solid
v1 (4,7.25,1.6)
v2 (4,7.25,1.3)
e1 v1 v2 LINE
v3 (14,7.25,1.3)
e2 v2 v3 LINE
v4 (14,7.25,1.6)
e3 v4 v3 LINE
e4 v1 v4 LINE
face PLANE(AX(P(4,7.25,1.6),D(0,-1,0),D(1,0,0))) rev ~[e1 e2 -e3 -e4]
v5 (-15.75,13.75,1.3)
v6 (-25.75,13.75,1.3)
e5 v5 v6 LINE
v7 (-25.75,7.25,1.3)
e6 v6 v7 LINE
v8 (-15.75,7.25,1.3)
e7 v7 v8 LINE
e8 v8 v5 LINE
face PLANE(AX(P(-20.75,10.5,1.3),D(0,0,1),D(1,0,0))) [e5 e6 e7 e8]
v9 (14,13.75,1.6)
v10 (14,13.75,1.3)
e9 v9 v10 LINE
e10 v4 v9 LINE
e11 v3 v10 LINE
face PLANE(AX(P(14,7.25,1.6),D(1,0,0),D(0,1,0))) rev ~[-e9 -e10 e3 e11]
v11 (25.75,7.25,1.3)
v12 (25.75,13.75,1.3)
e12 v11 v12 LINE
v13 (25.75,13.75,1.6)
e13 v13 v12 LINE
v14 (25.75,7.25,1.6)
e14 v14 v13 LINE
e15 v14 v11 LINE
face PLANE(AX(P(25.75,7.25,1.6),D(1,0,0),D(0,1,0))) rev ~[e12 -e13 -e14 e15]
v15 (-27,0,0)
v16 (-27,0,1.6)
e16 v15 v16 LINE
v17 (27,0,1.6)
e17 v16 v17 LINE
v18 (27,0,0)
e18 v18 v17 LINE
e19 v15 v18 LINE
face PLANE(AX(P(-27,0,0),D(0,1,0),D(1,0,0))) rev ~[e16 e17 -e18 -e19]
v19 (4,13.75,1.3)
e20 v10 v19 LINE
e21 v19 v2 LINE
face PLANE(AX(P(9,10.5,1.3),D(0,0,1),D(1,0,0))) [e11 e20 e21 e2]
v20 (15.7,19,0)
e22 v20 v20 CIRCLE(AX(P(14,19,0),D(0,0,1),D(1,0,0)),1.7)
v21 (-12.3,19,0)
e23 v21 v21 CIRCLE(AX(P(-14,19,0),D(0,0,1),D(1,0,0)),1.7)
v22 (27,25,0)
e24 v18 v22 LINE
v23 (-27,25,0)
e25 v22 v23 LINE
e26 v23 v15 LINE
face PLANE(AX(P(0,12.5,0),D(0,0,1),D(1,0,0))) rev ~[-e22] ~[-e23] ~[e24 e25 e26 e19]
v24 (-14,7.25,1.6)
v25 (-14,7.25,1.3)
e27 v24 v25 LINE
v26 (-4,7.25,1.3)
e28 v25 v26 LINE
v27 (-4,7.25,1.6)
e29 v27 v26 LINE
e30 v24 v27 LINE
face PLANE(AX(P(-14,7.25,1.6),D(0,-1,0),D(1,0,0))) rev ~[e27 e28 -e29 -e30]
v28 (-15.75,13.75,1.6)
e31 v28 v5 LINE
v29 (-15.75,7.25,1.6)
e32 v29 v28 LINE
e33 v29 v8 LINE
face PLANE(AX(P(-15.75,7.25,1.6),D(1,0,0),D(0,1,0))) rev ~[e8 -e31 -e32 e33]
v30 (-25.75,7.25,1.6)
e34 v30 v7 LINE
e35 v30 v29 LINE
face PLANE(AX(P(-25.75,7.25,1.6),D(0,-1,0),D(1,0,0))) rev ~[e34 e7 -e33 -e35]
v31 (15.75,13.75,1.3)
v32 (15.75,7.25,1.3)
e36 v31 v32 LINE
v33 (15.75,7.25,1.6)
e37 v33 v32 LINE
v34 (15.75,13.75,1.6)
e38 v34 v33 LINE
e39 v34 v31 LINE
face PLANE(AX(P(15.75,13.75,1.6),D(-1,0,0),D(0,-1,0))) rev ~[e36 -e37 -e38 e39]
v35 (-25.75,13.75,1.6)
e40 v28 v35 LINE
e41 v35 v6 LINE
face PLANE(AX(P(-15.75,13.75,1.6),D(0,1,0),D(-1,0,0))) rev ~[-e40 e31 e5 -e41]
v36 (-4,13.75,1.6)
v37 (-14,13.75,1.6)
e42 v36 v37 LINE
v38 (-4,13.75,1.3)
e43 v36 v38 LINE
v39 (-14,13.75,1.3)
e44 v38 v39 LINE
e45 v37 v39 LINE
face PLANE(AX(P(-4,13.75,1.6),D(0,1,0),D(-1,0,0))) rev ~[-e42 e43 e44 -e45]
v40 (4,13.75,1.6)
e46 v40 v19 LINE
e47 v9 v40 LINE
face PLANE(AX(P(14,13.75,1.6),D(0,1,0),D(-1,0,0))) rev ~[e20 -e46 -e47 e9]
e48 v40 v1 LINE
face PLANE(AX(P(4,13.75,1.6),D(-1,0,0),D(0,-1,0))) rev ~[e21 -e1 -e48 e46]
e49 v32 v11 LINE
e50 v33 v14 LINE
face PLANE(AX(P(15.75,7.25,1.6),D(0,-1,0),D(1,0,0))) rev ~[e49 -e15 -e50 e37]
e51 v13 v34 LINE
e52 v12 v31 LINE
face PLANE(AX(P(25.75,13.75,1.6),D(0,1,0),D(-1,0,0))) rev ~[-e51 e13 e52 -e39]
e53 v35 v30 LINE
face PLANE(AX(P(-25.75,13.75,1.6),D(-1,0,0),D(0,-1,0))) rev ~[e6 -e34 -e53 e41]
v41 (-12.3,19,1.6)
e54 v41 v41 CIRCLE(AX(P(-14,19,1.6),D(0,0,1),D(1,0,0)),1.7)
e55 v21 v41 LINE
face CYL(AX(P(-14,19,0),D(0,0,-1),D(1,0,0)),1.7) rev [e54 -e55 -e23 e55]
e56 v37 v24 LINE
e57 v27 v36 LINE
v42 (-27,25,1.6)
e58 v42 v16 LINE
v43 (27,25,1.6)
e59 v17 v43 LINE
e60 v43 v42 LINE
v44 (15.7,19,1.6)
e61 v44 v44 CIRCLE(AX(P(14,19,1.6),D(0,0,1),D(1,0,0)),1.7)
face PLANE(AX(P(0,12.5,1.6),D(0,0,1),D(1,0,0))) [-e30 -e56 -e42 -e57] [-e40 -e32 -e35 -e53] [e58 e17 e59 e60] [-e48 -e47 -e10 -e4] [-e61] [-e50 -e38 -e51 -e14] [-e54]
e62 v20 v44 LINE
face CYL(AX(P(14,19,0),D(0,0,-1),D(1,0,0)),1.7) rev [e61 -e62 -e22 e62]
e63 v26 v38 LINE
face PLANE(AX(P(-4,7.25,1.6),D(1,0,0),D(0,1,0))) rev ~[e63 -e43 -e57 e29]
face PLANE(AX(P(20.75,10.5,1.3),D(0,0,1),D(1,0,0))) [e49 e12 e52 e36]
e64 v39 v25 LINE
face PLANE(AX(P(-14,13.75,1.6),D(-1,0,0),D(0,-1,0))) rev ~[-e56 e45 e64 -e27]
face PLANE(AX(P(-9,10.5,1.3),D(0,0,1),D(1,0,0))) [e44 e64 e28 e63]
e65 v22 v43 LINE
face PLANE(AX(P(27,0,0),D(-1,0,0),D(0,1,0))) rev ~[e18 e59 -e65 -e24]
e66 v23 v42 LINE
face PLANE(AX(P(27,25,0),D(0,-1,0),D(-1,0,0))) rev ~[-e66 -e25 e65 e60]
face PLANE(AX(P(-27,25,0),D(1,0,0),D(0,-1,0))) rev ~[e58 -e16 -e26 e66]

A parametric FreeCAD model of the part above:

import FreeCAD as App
import Part
import Sketcher
from FreeCAD import Vector
Q = App.Units.Quantity


def add_polygon(sketch, points):
    """Adds a closed chain of lines whose ends are joined by coincident constraints."""
    first, n = sketch.GeometryCount, len(points)
    for a, b in zip(points, points[1:] + points[:1]):
        sketch.addGeometry(Part.LineSegment(App.Vector(*a, 0), App.Vector(*b, 0)), False)
    for i in range(n):
        sketch.addConstraint(Sketcher.Constraint("Coincident", first + i, 2, first + (i + 1) % n, 1))

doc = App.newDocument("Part")
params = doc.addObject("Spreadsheet::Sheet", "Params")
for row, (alias, value) in enumerate([
    ("sketch1_diameter", "3.4 mm"),
    ("sketch1_height", "25 mm"),
    ("pad1_length", "1.6 mm"),
    ("sketch2_width", "10 mm"),
    ("sketch2_height", "6.5 mm"),
    ("pocket1_length", "0.3 mm"),
], start=1):
    params.set(f"A{row}", alias)
    params.set(f"B{row}", "=" + value)
    params.setAlias(f"B{row}", alias)

body = doc.addObject("PartDesign::Body", "Body")

# Sketch on XY plane
sketch1 = body.newObject("Sketcher::SketchObject", "Sketch")
sketch1.AttachmentSupport = (doc.getObject("XY_Plane"), [""])
sketch1.MapMode = "FlatFace"
add_polygon(sketch1, [(27, 0), (27, 25), (-27, 25), (-27, 0)])  # lines 0-3
sketch1.addGeometry(Part.Circle(Vector(-14, 19, 0), Vector(0, 0, 1), 1.7), False)  # 4
sketch1.addGeometry(Part.Circle(Vector(14, 19, 0), Vector(0, 0, 1), 1.7), False)  # 5
sketch1.addConstraint(Sketcher.Constraint("Vertical", 0))
sketch1.addConstraint(Sketcher.Constraint("Horizontal", 1))
sketch1.addConstraint(Sketcher.Constraint("Vertical", 2))
sketch1.addConstraint(Sketcher.Constraint("Horizontal", 3))
sketch1.addConstraint(Sketcher.Constraint("Equal", 4, 5))
sketch1.addConstraint(Sketcher.Constraint("Symmetric", 2, 2, 3, 2, -1, 1))
sketch1.addConstraint(Sketcher.Constraint("Symmetric", 4, 3, 5, 3, -2))
sketch1.addConstraint(Sketcher.Constraint("DistanceX", -1, 1, 0, 2, Q("27 mm")))
sketch1.addConstraint(Sketcher.Constraint("Diameter", 4, Q("3.4 mm")))
sketch1.addConstraint(Sketcher.Constraint("DistanceY", 0, 1, 0, 2, Q("25 mm")))
sketch1.addConstraint(Sketcher.Constraint("DistanceX", 4, 3, -1, 1, Q("14 mm")))
sketch1.addConstraint(Sketcher.Constraint("DistanceY", -1, 1, 4, 3, Q("19 mm")))
sketch1.setExpression("Constraints[12]", "Params.sketch1_diameter")
sketch1.setExpression("Constraints[13]", "Params.sketch1_height")
pad1 = body.newObject("PartDesign::Pad", "Pad")
pad1.Profile = sketch1
pad1.setExpression("Length", "Params.pad1_length")

# Sketch on XY plane
sketch2 = body.newObject("Sketcher::SketchObject", "Sketch001")
sketch2.AttachmentSupport = (doc.getObject("XY_Plane"), [""])
sketch2.MapMode = "FlatFace"
sketch2.AttachmentOffset = App.Placement(Vector(0, 0, 1.6), App.Rotation())
add_polygon(sketch2, [(-16, 7), (-16, 14), (-26, 14), (-26, 7)])  # lines 0-3
add_polygon(sketch2, [(-4, 7), (-4, 14), (-14, 14), (-14, 7)])  # lines 4-7
add_polygon(sketch2, [(14, 7), (14, 14), (4, 14), (4, 7)])  # lines 8-11
add_polygon(sketch2, [(26, 7), (26, 14), (16, 14), (16, 7)])  # lines 12-15
sketch2.addConstraint(Sketcher.Constraint("Vertical", 0))
sketch2.addConstraint(Sketcher.Constraint("Horizontal", 1))
sketch2.addConstraint(Sketcher.Constraint("Vertical", 2))
sketch2.addConstraint(Sketcher.Constraint("Horizontal", 3))
sketch2.addConstraint(Sketcher.Constraint("Vertical", 4))
sketch2.addConstraint(Sketcher.Constraint("Horizontal", 5))
sketch2.addConstraint(Sketcher.Constraint("Vertical", 6))
sketch2.addConstraint(Sketcher.Constraint("Horizontal", 7))
sketch2.addConstraint(Sketcher.Constraint("Vertical", 8))
sketch2.addConstraint(Sketcher.Constraint("Horizontal", 9))
sketch2.addConstraint(Sketcher.Constraint("Vertical", 10))
sketch2.addConstraint(Sketcher.Constraint("Horizontal", 11))
sketch2.addConstraint(Sketcher.Constraint("Vertical", 12))
sketch2.addConstraint(Sketcher.Constraint("Horizontal", 13))
sketch2.addConstraint(Sketcher.Constraint("Vertical", 14))
sketch2.addConstraint(Sketcher.Constraint("Horizontal", 15))
sketch2.addConstraint(Sketcher.Constraint("Symmetric", 5, 2, 8, 2, -2))
sketch2.addConstraint(Sketcher.Constraint("Symmetric", 7, 2, 10, 2, -2))
sketch2.addConstraint(Sketcher.Constraint("Symmetric", 1, 2, 12, 2, -2))
sketch2.addConstraint(Sketcher.Constraint("Symmetric", 3, 2, 14, 2, -2))
sketch2.addConstraint(Sketcher.Constraint("Horizontal", 1, 2, 4, 2))
sketch2.addConstraint(Sketcher.Constraint("Horizontal", 3, 2, 6, 2))
sketch2.addConstraint(Sketcher.Constraint("Equal", 3, 5))
sketch2.addConstraint(Sketcher.Constraint("DistanceX", 1, 2, 1, 1, Q("10 mm")))
sketch2.addConstraint(Sketcher.Constraint("DistanceX", 0, 2, -1, 1, Q("15.75 mm")))
sketch2.addConstraint(Sketcher.Constraint("DistanceY", 0, 1, 0, 2, Q("6.5 mm")))
sketch2.addConstraint(Sketcher.Constraint("DistanceX", 4, 2, -1, 1, Q("4 mm")))
sketch2.addConstraint(Sketcher.Constraint("DistanceY", -1, 1, 0, 2, Q("13.75 mm")))
sketch2.setExpression("Constraints[39]", "Params.sketch2_width")
sketch2.setExpression("Constraints[41]", "Params.sketch2_height")
pocket1 = body.newObject("PartDesign::Pocket", "Pocket")
pocket1.Profile = sketch2
pocket1.setExpression("Length", "Params.pocket1_length")

doc.recompute()
